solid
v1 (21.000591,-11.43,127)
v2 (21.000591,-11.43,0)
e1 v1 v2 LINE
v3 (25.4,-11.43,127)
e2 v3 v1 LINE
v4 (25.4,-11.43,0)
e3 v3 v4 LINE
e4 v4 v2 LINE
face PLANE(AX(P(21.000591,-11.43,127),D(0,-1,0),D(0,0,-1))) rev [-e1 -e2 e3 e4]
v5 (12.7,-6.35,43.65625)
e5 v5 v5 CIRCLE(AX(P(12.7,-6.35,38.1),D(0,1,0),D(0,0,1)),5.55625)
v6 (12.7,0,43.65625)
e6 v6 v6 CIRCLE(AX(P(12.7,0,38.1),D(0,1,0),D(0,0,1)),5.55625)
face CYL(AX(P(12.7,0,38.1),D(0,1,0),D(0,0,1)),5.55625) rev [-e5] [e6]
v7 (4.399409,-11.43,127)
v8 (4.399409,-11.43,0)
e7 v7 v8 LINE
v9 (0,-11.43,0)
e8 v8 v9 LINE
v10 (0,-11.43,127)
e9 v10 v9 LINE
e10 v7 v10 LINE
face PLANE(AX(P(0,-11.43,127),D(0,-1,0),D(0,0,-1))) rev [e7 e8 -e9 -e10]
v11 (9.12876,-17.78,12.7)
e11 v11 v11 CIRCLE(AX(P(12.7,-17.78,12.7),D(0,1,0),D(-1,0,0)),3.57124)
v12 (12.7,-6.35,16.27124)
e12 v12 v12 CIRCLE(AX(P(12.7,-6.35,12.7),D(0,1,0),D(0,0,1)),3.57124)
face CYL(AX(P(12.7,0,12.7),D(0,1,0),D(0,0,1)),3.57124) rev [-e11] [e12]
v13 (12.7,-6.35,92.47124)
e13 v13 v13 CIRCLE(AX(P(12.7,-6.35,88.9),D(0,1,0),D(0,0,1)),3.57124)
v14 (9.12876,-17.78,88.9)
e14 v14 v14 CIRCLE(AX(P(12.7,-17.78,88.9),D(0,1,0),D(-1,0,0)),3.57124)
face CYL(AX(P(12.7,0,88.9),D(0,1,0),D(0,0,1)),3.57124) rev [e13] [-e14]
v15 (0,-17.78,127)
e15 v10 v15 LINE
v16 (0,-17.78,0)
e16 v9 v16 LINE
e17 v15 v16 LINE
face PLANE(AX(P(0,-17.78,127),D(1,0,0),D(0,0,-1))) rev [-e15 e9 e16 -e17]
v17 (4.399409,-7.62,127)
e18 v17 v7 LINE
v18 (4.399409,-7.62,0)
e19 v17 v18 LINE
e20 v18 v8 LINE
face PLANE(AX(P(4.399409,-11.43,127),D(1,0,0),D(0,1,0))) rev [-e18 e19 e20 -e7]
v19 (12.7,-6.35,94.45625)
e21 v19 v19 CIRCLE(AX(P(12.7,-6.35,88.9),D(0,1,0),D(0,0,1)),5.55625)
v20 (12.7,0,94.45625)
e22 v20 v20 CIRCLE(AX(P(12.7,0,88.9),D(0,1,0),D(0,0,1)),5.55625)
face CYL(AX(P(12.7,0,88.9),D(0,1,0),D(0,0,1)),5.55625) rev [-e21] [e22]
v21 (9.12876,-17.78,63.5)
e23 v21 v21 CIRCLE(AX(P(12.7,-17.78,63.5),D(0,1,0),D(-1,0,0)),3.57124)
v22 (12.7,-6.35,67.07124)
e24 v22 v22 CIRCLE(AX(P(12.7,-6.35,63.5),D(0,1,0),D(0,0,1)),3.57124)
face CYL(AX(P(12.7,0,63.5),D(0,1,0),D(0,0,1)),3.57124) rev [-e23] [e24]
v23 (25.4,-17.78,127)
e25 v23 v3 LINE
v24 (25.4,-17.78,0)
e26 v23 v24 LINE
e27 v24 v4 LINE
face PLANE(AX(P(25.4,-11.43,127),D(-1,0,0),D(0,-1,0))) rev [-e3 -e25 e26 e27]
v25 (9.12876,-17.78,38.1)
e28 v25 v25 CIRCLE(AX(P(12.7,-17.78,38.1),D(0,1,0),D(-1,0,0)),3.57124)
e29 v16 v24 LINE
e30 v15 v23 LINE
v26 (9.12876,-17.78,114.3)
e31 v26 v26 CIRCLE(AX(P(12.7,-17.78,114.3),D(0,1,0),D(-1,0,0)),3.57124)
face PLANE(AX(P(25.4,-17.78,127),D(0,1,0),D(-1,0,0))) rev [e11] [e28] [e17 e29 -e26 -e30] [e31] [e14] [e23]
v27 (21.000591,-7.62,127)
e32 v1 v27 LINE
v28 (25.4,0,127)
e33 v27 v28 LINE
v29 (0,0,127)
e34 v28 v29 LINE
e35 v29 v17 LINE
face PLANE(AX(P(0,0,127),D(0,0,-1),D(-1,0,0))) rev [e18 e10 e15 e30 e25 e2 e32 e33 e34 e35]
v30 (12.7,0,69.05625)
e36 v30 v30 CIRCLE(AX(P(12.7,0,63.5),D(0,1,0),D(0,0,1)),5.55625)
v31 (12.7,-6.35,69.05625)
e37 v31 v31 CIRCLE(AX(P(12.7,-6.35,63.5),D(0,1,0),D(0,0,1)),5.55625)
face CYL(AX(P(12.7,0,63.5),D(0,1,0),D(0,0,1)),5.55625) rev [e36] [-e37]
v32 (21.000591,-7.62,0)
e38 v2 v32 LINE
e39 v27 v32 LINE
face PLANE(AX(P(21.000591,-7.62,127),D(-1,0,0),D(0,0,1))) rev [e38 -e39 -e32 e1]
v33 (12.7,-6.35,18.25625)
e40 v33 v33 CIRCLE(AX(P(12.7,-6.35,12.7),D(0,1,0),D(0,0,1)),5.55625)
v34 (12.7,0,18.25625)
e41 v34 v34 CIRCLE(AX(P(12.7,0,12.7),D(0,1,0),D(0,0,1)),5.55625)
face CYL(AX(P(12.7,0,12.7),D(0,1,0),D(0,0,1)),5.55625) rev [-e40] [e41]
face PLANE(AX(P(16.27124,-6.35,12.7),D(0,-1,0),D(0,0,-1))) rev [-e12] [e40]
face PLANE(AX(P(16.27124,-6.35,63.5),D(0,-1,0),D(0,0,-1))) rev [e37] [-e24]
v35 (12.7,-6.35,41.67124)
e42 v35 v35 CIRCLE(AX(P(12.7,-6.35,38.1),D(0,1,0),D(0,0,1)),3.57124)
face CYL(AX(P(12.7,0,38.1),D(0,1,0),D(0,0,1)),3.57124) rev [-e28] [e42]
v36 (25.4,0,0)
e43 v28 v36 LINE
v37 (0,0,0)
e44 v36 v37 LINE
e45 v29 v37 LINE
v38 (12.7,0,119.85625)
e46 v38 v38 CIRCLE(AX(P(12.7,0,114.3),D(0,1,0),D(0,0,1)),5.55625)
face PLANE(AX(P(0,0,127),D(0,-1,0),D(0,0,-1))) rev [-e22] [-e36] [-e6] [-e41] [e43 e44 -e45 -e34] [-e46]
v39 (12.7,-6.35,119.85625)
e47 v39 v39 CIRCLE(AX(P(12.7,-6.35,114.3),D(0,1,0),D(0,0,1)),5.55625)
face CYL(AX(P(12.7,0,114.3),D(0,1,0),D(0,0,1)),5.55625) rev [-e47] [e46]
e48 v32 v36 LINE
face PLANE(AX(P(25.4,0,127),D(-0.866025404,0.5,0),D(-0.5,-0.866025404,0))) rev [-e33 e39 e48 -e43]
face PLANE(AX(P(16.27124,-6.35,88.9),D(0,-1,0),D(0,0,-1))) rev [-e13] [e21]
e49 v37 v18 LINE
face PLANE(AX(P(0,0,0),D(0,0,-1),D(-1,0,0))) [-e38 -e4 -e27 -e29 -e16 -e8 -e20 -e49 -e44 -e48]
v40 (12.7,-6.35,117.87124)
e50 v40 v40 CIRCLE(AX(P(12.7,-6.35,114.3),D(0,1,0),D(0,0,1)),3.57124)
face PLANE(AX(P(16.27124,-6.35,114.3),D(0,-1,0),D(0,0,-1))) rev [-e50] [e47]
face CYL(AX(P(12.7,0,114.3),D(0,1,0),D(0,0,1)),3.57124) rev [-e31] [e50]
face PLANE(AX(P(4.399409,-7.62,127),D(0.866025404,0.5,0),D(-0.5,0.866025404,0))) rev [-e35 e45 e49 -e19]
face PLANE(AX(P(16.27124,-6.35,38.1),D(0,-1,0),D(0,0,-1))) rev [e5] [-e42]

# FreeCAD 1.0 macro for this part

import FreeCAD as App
import Part
import Sketcher
from FreeCAD import Vector
Q = App.Units.Quantity


def add_polygon(sketch, points):
    """Adds a closed chain of lines whose ends are joined by coincident constraints."""
    first, n = sketch.GeometryCount, len(points)
    for a, b in zip(points, points[1:] + points[:1]):
        sketch.addGeometry(Part.LineSegment(App.Vector(*a, 0), App.Vector(*b, 0)), False)
    for i in range(n):
        sketch.addConstraint(Sketcher.Constraint("Coincident", first + i, 2, first + (i + 1) % n, 1))

doc = App.newDocument("Part")
params = doc.addObject("Spreadsheet::Sheet", "Params")
for row, (alias, value) in enumerate([
    ("sketch1_width", "1 in"),
    ("sketch1_height", "0.15 in"),
    ("sketch1_height2", "0.25 in"),
    ("pad1_length", "5 in"),
    ("hole_diameter", "0.2812 in"),
    ("hole_cbore_diameter", "0.4375 in"),
    ("hole_cbore_depth", "0.25 in"),
], start=1):
    params.set(f"A{row}", alias)
    params.set(f"B{row}", "=" + value)
    params.setAlias(f"B{row}", alias)

body = doc.addObject("PartDesign::Body", "Body")

# Sketch on XY plane
sketch1 = doc.addObject("Sketcher::SketchObject", "Sketch")
body.addObject(sketch1)
sketch1.AttachmentSupport = (doc.XY_Plane, [""])
sketch1.MapMode = "FlatFace"
add_polygon(sketch1, [(25.4, 0), (0, 0), (4.399409, -7.62), (4.399409, -11.43), (0, -11.43), (0, -17.78), (25.4, -17.78), (25.4, -11.43), (21.000591, -11.43), (21.000591, -7.62)])  # lines 0-9
sketch1.addConstraint([
    Sketcher.Constraint("Horizontal", 0),
    Sketcher.Constraint("Vertical", 2),
    Sketcher.Constraint("Horizontal", 3),
    Sketcher.Constraint("Vertical", 4),
    Sketcher.Constraint("Horizontal", 5),
    Sketcher.Constraint("Vertical", 6),
    Sketcher.Constraint("Horizontal", 7),
    Sketcher.Constraint("Vertical", 8),
    Sketcher.Constraint("Coincident", 0, 2, -1, 1),
    Sketcher.Constraint("PointOnObject", 3, 2, -2),
    Sketcher.Constraint("Horizontal", 3, 2, 6, 2),
    Sketcher.Constraint("Horizontal", 1, 2, 8, 2),
    Sketcher.Constraint("Vertical", 6, 2, 9, 2),
    Sketcher.Constraint("Equal", 3, 7),
    Sketcher.Constraint("DistanceX", 0, 2, 0, 1, Q("1 in")),
    Sketcher.Constraint("Angle", 1, Q("-60 deg")),
    Sketcher.Constraint("DistanceY", 2, 2, 2, 1, Q("0.15 in")),
    Sketcher.Constraint("DistanceY", 4, 2, 4, 1, Q("0.25 in")),
    Sketcher.Constraint("DistanceY", 1, 2, -1, 1, Q("0.3 in")),
])
sketch1.setExpression("Constraints[24]", "Params.sketch1_width")
sketch1.setExpression("Constraints[26]", "Params.sketch1_height")
sketch1.setExpression("Constraints[27]", "Params.sketch1_height2")
pad1 = doc.addObject("PartDesign::Pad", "Pad")
body.addObject(pad1)
pad1.Profile = sketch1
pad1.setExpression("Length", "Params.pad1_length")

# Sketch on XZ plane
sketch2 = doc.addObject("Sketcher::SketchObject", "Sketch001")
body.addObject(sketch2)
sketch2.AttachmentSupport = (doc.XZ_Plane, [""])
sketch2.MapMode = "FlatFace"
sketch2.addGeometry([
    Part.Circle(Vector(12.7, 12.7, 0), Vector(0, 0, 1), 3.57124),  # 0
    Part.Circle(Vector(12.7, 38.1, 0), Vector(0, 0, 1), 3.57124),  # 1
    Part.Circle(Vector(12.7, 63.5, 0), Vector(0, 0, 1), 3.57124),  # 2
    Part.Circle(Vector(12.7, 88.9, 0), Vector(0, 0, 1), 3.57124),  # 3
    Part.Circle(Vector(12.7, 114.3, 0), Vector(0, 0, 1), 3.57124),  # 4
], False)
sketch2.addConstraint([
    Sketcher.Constraint("Equal", 0, 1),
    Sketcher.Constraint("Equal", 1, 2),
    Sketcher.Constraint("Equal", 2, 3),
    Sketcher.Constraint("Equal", 3, 4),
    Sketcher.Constraint("Vertical", 0, 3, 1, 3),
    Sketcher.Constraint("Vertical", 1, 3, 2, 3),
    Sketcher.Constraint("Vertical", 2, 3, 3, 3),
    Sketcher.Constraint("Vertical", 3, 3, 4, 3),
    Sketcher.Constraint("DistanceY", 0, 3, 1, 3, Q("1 in")),
    Sketcher.Constraint("DistanceY", 1, 3, 2, 3, Q("1 in")),
    Sketcher.Constraint("DistanceY", 2, 3, 3, 3, Q("1 in")),
    Sketcher.Constraint("DistanceY", 3, 3, 4, 3, Q("1 in")),
    Sketcher.Constraint("Diameter", 0, Q("0.2812 in")),
    Sketcher.Constraint("DistanceX", -1, 1, 0, 3, Q("0.5 in")),
    Sketcher.Constraint("DistanceY", -1, 1, 0, 3, Q("0.5 in")),
])
doc.recompute()
hole = doc.addObject("PartDesign::Hole", "Hole")
body.addObject(hole)
hole.Profile = sketch2
hole.ThreadType = "None"
hole.setExpression("Diameter", "Params.hole_diameter")
hole.DepthType = "ThroughAll"
hole.HoleCutType = "Counterbore"
hole.setExpression("HoleCutDiameter", "Params.hole_cbore_diameter")
hole.setExpression("HoleCutDepth", "Params.hole_cbore_depth")
hole.Reversed = True

doc.recompute()
